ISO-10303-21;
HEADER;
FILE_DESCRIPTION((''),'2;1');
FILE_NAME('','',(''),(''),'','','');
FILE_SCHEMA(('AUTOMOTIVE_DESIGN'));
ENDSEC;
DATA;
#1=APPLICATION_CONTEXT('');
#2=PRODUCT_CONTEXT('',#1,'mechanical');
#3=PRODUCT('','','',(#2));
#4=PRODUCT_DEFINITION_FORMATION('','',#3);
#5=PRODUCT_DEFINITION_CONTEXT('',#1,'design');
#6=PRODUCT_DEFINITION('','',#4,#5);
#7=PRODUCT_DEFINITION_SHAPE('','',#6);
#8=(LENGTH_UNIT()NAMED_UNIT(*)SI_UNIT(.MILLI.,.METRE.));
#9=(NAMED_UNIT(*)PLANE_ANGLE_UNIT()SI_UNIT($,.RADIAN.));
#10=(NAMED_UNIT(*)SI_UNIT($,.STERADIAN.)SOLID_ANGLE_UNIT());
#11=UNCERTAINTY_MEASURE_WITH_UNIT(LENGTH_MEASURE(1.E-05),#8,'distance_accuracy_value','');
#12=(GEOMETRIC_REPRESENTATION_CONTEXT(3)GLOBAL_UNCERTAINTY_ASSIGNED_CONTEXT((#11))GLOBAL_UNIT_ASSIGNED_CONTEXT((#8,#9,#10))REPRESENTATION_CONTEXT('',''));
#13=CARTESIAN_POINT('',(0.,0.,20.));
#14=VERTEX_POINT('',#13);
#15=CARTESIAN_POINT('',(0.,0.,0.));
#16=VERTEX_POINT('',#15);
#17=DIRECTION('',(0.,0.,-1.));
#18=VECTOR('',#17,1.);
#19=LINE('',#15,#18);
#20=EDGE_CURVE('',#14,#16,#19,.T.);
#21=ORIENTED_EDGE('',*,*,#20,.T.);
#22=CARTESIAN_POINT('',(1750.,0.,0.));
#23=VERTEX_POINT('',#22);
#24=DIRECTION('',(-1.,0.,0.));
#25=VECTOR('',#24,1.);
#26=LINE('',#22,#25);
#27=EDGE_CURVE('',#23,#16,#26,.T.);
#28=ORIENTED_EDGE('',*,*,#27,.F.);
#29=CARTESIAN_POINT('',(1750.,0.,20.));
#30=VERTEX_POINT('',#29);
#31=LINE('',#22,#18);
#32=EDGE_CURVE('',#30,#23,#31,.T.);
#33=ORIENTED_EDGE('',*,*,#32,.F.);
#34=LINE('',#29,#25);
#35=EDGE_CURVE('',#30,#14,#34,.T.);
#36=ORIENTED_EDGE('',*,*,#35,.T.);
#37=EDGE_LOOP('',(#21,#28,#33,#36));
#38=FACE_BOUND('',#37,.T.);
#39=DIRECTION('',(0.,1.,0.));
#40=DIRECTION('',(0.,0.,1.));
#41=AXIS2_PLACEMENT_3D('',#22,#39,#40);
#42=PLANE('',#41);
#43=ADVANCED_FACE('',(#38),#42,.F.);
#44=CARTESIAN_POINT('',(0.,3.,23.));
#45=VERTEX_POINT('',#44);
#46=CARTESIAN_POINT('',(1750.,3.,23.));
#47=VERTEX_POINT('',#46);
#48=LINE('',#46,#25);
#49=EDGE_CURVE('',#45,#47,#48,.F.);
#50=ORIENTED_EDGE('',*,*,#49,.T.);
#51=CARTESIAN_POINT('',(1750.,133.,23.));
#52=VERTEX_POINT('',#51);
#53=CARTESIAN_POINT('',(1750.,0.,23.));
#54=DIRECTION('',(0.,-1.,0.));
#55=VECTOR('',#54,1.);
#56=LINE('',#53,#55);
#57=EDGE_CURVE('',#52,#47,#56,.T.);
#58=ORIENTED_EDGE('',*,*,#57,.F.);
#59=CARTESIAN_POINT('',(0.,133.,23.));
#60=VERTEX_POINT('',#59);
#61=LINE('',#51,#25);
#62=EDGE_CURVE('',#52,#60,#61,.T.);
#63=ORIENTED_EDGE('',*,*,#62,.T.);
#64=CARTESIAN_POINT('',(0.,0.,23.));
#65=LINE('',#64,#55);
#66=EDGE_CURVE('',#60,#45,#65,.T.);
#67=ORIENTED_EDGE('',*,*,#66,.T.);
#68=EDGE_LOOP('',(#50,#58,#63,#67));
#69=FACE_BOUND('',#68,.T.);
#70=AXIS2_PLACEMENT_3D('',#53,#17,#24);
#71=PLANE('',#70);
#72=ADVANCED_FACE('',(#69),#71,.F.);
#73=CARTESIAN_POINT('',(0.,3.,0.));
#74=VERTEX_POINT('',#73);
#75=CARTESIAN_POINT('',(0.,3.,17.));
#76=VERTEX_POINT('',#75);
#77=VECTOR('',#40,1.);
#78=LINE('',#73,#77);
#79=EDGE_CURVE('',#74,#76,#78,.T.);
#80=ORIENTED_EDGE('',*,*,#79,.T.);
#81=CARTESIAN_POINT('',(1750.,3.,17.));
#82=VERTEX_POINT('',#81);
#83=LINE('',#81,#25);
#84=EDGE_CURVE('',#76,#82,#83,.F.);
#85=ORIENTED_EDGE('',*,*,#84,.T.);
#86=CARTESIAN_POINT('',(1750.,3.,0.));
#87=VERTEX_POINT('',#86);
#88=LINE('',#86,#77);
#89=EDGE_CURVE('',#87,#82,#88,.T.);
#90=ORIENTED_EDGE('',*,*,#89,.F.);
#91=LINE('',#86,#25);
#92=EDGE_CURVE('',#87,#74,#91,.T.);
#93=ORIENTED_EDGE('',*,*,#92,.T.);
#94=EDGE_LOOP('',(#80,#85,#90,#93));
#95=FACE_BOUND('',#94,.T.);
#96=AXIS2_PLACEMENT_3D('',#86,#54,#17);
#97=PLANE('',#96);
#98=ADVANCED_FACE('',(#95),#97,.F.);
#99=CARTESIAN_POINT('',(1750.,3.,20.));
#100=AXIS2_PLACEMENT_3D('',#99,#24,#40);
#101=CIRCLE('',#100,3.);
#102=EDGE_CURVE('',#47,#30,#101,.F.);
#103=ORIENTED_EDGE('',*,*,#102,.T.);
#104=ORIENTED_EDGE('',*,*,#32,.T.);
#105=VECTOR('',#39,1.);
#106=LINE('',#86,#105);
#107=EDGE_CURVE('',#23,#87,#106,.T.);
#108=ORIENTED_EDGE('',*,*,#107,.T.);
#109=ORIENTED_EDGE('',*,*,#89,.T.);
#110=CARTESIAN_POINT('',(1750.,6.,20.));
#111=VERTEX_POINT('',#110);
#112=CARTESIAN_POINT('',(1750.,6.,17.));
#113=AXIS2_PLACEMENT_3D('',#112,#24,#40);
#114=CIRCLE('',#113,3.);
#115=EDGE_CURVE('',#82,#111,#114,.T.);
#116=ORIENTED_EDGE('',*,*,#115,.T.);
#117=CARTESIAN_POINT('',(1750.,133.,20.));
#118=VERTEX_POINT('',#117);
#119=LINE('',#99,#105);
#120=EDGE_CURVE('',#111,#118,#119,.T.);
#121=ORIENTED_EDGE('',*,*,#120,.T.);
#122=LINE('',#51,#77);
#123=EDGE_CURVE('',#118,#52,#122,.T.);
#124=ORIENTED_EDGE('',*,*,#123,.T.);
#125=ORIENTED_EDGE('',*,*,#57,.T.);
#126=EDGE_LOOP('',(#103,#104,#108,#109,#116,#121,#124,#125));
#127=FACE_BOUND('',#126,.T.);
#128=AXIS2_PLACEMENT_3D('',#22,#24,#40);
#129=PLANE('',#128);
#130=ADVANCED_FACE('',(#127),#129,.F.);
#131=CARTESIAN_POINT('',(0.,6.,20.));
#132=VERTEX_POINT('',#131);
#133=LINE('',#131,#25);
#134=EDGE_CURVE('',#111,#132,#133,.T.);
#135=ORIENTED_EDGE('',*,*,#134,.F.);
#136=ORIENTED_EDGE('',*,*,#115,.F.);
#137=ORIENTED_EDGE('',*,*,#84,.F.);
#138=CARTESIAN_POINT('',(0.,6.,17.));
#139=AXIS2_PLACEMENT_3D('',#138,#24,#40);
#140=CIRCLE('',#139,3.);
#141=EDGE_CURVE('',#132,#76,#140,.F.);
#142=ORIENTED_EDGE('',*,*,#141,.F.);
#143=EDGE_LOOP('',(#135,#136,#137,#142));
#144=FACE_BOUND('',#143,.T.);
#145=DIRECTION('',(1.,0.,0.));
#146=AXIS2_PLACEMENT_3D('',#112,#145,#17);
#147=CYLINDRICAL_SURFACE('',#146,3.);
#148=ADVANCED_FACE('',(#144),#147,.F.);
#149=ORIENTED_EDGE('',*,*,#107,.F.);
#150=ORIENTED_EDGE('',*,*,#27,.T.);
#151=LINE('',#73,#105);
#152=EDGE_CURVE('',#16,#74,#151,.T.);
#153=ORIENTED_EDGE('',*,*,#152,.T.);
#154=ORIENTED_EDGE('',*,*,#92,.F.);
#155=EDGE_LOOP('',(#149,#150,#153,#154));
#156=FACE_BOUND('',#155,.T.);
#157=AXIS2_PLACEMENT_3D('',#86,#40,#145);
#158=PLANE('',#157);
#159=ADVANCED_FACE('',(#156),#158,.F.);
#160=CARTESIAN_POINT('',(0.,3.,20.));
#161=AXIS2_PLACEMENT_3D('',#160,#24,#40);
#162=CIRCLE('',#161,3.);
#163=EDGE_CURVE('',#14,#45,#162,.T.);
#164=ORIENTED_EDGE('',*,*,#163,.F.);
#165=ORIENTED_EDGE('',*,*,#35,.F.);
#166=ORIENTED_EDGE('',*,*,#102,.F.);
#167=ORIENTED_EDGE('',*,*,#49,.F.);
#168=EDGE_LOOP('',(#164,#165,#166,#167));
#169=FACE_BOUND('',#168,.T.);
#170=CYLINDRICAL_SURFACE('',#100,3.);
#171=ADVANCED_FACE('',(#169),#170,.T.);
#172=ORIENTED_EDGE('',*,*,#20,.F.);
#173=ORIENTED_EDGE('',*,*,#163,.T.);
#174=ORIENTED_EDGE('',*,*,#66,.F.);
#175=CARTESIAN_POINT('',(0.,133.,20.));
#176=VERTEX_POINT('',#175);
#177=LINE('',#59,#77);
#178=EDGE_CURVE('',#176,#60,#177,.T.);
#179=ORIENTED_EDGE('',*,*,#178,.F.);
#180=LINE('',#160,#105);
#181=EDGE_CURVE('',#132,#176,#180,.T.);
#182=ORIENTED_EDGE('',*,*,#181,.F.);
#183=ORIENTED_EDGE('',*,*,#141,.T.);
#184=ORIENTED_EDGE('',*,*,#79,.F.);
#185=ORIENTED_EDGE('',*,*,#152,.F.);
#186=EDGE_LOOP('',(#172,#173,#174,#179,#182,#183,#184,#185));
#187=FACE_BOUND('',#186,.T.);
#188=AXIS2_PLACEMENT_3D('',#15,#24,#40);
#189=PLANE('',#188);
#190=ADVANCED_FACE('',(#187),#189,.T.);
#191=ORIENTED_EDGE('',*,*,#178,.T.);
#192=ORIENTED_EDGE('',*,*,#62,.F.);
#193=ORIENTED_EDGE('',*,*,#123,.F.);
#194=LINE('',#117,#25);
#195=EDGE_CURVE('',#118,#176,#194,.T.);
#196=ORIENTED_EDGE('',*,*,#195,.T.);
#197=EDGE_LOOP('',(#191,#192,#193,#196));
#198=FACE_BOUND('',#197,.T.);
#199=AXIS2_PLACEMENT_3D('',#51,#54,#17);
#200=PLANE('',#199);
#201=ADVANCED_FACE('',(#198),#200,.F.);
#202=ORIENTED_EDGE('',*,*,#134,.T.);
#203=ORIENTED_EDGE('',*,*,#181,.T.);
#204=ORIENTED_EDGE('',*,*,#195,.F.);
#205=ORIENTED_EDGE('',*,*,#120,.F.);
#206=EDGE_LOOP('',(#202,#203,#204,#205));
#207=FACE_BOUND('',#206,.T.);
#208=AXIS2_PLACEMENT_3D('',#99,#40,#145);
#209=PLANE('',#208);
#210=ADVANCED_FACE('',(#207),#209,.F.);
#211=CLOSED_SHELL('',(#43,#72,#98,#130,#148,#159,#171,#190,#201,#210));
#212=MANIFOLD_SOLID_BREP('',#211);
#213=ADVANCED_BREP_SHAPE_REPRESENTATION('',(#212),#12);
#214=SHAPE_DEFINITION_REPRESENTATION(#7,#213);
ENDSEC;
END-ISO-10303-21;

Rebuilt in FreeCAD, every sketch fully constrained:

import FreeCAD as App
import Part
import Sketcher
Q = App.Units.Quantity


def edges_at(feature, points):
    """Names of the edges that pass closest to the given points."""
    edges = feature.Shape.Edges
    near = lambda p: min(range(len(edges)), key=lambda i: edges[i].distToShape(Part.Vertex(*p))[0])
    return sorted({f"Edge{near(p) + 1}" for p in points})


def add_polygon(sketch, points):
    """Adds a closed chain of lines whose ends are joined by coincident constraints."""
    first, n = sketch.GeometryCount, len(points)
    for a, b in zip(points, points[1:] + points[:1]):
        sketch.addGeometry(Part.LineSegment(App.Vector(*a, 0), App.Vector(*b, 0)), False)
    for i in range(n):
        sketch.addConstraint(Sketcher.Constraint("Coincident", first + i, 2, first + (i + 1) % n, 1))

doc = App.newDocument("Part")
body = doc.addObject("PartDesign::Body", "Body")

sketch1 = body.newObject("Sketcher::SketchObject", "Sketch")
sketch1.AttachmentSupport = (doc.getObject("YZ_Plane"), [""])
sketch1.MapMode = "FlatFace"
add_polygon(sketch1, [(0, 23), (0, 0), (3, 0), (3, 20), (133, 20), (133, 23)])
sketch1.addConstraint([
    Sketcher.Constraint("Vertical", 0),
    Sketcher.Constraint("Horizontal", 1),
    Sketcher.Constraint("Vertical", 2),
    Sketcher.Constraint("Horizontal", 3),
    Sketcher.Constraint("Vertical", 4),
    Sketcher.Constraint("Horizontal", 5),
    Sketcher.Constraint("Coincident", 0, 2, -1, 1),
    Sketcher.Constraint("Equal", 1, 4),
    Sketcher.Constraint("DistanceX", 1, 1, 1, 2, Q("3 mm")),
    Sketcher.Constraint("DistanceX", 3, 1, 3, 2, Q("130 mm")),
    Sketcher.Constraint("DistanceY", 0, 2, 0, 1, Q("23 mm")),
])
pad1 = body.newObject("PartDesign::Pad", "Pad")
pad1.Profile = sketch1
pad1.Length = 1750
doc.recompute()

fillet = body.newObject("PartDesign::Fillet", "Fillet")
fillet.Base = (pad1, edges_at(pad1, [(875, 0, 23), (875, 3, 20)]))
fillet.Radius = 3

doc.recompute()
